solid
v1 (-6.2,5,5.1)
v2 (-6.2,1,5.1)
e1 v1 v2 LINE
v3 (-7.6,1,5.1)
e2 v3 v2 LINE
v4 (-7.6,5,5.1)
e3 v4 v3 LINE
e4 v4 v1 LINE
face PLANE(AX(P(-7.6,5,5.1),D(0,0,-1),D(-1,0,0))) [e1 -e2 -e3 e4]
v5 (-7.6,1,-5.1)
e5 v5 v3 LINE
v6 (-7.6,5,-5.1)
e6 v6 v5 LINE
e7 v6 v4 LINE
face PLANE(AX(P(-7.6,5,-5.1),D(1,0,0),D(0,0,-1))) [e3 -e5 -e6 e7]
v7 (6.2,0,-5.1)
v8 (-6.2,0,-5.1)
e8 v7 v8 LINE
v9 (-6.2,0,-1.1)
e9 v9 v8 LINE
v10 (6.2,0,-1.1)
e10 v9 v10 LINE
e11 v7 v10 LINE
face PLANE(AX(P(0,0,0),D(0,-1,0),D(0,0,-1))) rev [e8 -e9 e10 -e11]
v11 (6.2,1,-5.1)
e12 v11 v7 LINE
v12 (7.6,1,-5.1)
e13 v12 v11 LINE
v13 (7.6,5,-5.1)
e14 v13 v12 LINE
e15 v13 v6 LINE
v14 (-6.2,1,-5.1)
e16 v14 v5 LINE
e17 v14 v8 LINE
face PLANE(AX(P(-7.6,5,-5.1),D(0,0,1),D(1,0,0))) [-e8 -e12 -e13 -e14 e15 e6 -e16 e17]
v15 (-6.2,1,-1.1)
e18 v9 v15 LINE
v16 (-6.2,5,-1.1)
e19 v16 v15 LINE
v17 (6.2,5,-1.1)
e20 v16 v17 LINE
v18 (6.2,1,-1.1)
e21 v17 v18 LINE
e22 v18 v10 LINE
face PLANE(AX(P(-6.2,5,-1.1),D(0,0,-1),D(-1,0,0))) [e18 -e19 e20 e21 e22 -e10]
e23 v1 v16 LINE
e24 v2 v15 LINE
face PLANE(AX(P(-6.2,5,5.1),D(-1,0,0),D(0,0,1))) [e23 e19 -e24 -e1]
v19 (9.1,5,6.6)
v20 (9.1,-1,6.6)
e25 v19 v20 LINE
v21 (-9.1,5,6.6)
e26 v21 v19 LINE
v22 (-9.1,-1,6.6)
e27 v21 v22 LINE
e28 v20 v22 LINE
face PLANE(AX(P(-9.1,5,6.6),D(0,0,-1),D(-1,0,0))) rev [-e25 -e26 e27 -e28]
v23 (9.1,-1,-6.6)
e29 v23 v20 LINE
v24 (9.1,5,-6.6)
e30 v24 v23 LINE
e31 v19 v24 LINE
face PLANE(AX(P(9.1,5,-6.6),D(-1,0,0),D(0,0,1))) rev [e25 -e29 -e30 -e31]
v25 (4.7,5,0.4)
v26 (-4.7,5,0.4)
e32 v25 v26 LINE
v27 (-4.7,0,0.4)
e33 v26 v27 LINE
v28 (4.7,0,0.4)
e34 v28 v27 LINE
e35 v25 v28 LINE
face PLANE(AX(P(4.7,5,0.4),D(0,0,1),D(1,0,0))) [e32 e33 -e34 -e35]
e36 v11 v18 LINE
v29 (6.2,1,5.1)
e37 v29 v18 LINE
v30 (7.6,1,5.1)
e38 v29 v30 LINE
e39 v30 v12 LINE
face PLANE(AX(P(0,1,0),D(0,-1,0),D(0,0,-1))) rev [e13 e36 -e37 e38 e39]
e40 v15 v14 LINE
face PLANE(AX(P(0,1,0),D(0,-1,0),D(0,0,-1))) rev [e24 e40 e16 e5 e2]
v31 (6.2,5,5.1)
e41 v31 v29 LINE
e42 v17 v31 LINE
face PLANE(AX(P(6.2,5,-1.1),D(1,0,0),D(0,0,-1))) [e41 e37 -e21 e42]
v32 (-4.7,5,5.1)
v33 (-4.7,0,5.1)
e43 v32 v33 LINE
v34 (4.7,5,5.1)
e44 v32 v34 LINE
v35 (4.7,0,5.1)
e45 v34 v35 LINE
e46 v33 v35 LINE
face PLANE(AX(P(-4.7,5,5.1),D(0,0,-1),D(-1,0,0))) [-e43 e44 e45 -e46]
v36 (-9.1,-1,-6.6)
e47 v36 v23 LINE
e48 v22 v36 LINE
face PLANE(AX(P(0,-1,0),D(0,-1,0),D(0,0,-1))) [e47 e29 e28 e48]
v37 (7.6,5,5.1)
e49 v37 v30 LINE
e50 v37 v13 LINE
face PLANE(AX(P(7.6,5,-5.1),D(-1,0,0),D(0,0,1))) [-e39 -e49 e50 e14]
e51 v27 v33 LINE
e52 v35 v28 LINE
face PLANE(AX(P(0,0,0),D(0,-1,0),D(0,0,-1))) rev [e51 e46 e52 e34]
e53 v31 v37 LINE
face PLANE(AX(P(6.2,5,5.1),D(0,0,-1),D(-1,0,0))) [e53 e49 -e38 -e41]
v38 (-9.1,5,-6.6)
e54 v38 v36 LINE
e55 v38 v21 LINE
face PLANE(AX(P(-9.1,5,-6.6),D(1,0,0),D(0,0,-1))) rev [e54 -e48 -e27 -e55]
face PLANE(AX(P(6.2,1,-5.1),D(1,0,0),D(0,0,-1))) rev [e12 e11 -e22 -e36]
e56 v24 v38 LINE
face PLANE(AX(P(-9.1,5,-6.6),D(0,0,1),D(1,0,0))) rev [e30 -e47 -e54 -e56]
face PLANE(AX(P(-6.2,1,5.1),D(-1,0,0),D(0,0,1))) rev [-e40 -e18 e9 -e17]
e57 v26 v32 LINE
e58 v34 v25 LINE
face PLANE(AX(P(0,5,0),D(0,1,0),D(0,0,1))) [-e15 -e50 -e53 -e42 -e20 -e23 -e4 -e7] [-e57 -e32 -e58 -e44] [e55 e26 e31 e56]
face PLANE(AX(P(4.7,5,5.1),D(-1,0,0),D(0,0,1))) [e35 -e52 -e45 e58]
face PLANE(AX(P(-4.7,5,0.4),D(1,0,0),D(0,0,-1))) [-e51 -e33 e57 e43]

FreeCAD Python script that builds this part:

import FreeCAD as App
import Part
import Sketcher

V = App.Vector
Q = App.Units.Quantity


def add_polygon(sketch, points):
    """Adds a closed chain of lines whose ends are joined by coincident constraints."""
    first, n = sketch.GeometryCount, len(points)
    for a, b in zip(points, points[1:] + points[:1]):
        sketch.addGeometry(Part.LineSegment(App.Vector(*a, 0), App.Vector(*b, 0)), False)
    for i in range(n):
        sketch.addConstraint(Sketcher.Constraint("Coincident", first + i, 2, first + (i + 1) % n, 1))

doc = App.newDocument("Part")
body = doc.addObject("PartDesign::Body", "Body")

sketch1 = body.newObject("Sketcher::SketchObject", "Sketch")
sketch1.AttachmentSupport = (doc.getObject("XZ_Plane"), [""])
sketch1.MapMode = "FlatFace"
add_polygon(sketch1, [(-9.1, -6.6), (-9.1, 6.6), (9.1, 6.6), (9.1, -6.6)])
add_polygon(sketch1, [(4.7, 5.1), (-4.7, 5.1), (-4.7, 0.4), (4.7, 0.4)])
add_polygon(sketch1, [(-6.2, -1.1), (-6.2, 5.1), (-7.6, 5.1), (-7.6, -5.1), (7.6, -5.1), (7.6, 5.1), (6.2, 5.1), (6.2, -1.1)])
sketch1.addConstraint([
    Sketcher.Constraint("Vertical", 0),
    Sketcher.Constraint("Horizontal", 1),
    Sketcher.Constraint("Vertical", 2),
    Sketcher.Constraint("Horizontal", 3),
    Sketcher.Constraint("Horizontal", 4),
    Sketcher.Constraint("Vertical", 5),
    Sketcher.Constraint("Horizontal", 6),
    Sketcher.Constraint("Vertical", 7),
    Sketcher.Constraint("Vertical", 8),
    Sketcher.Constraint("Horizontal", 9),
    Sketcher.Constraint("Vertical", 10),
    Sketcher.Constraint("Horizontal", 11),
    Sketcher.Constraint("Vertical", 12),
    Sketcher.Constraint("Horizontal", 13),
    Sketcher.Constraint("Vertical", 14),
    Sketcher.Constraint("Horizontal", 15),
    Sketcher.Constraint("Symmetric", 0, 2, 2, 2, -1, 1),
    Sketcher.Constraint("Symmetric", 9, 2, 11, 2, -1, 1),
    Sketcher.Constraint("Symmetric", 8, 2, 13, 2, -2),
    Sketcher.Constraint("Horizontal", 7, 2, 8, 2),
    Sketcher.Constraint("DistanceX", 1, 1, 1, 2, Q("18.2 mm")),
    Sketcher.Constraint("DistanceX", 4, 2, 4, 1, Q("9.4 mm")),
    Sketcher.Constraint("DistanceX", 9, 2, 9, 1, Q("1.4 mm")),
    Sketcher.Constraint("DistanceX", 11, 1, 11, 2, Q("15.2 mm")),
    Sketcher.Constraint("DistanceY", 0, 1, 0, 2, Q("13.2 mm")),
    Sketcher.Constraint("DistanceY", 5, 2, 5, 1, Q("4.7 mm")),
    Sketcher.Constraint("DistanceY", 8, 1, 8, 2, Q("6.2 mm")),
    Sketcher.Constraint("DistanceY", 10, 2, 10, 1, Q("10.2 mm")),
    Sketcher.Constraint("DistanceX", 4, 2, -1, 1, Q("4.7 mm")),
])
pad1 = body.newObject("PartDesign::Pad", "Pad")
pad1.Profile = sketch1
pad1.Length = 5
pad1.Reversed = True

sketch2 = body.newObject("Sketcher::SketchObject", "Sketch001")
sketch2.AttachmentSupport = (doc.getObject("XZ_Plane"), [""])
sketch2.MapMode = "FlatFace"
add_polygon(sketch2, [(-9, 7), (-9, -7), (9, -7), (9, 7)])
sketch2.addConstraint([
    Sketcher.Constraint("Vertical", 0),
    Sketcher.Constraint("Horizontal", 1),
    Sketcher.Constraint("Vertical", 2),
    Sketcher.Constraint("Horizontal", 3),
    Sketcher.Constraint("Symmetric", 0, 2, 2, 2, -1, 1),
    Sketcher.Constraint("DistanceX", 1, 1, 1, 2, Q("18.2 mm")),
    Sketcher.Constraint("DistanceY", 0, 2, 0, 1, Q("13.2 mm")),
])
pad2 = body.newObject("PartDesign::Pad", "Pad001")
pad2.Profile = sketch2
pad2.Length = 1

sketch3 = body.newObject("Sketcher::SketchObject", "Sketch002")
sketch3.AttachmentSupport = (doc.getObject("XZ_Plane"), [""])
sketch3.MapMode = "FlatFace"
add_polygon(sketch3, [(-7.6, -5.1), (-7.6, 5.1), (-6.2, 5.1), (-6.2, -5.1)])
add_polygon(sketch3, [(6.2, -5.1), (6.2, 5.1), (7.6, 5.1), (7.6, -5.1)])
sketch3.addConstraint([
    Sketcher.Constraint("Vertical", 0),
    Sketcher.Constraint("Horizontal", 1),
    Sketcher.Constraint("Vertical", 2),
    Sketcher.Constraint("Horizontal", 3),
    Sketcher.Constraint("Vertical", 4),
    Sketcher.Constraint("Horizontal", 5),
    Sketcher.Constraint("Vertical", 6),
    Sketcher.Constraint("Horizontal", 7),
    Sketcher.Constraint("Symmetric", 2, 2, 4, 2, -1, 1),
    Sketcher.Constraint("Symmetric", 0, 2, 6, 2, -1, 1),
    Sketcher.Constraint("Horizontal", 1, 2, 4, 2),
    Sketcher.Constraint("DistanceX", 1, 1, 1, 2, Q("1.4 mm")),
    Sketcher.Constraint("DistanceY", 0, 1, 0, 2, Q("10.2 mm")),
    Sketcher.Constraint("DistanceX", 0, 2, -1, 1, Q("7.6 mm")),
])
pad3 = body.newObject("PartDesign::Pad", "Pad002")
pad3.Profile = sketch3
pad3.Length = 1
pad3.Reversed = True

doc.recompute()
